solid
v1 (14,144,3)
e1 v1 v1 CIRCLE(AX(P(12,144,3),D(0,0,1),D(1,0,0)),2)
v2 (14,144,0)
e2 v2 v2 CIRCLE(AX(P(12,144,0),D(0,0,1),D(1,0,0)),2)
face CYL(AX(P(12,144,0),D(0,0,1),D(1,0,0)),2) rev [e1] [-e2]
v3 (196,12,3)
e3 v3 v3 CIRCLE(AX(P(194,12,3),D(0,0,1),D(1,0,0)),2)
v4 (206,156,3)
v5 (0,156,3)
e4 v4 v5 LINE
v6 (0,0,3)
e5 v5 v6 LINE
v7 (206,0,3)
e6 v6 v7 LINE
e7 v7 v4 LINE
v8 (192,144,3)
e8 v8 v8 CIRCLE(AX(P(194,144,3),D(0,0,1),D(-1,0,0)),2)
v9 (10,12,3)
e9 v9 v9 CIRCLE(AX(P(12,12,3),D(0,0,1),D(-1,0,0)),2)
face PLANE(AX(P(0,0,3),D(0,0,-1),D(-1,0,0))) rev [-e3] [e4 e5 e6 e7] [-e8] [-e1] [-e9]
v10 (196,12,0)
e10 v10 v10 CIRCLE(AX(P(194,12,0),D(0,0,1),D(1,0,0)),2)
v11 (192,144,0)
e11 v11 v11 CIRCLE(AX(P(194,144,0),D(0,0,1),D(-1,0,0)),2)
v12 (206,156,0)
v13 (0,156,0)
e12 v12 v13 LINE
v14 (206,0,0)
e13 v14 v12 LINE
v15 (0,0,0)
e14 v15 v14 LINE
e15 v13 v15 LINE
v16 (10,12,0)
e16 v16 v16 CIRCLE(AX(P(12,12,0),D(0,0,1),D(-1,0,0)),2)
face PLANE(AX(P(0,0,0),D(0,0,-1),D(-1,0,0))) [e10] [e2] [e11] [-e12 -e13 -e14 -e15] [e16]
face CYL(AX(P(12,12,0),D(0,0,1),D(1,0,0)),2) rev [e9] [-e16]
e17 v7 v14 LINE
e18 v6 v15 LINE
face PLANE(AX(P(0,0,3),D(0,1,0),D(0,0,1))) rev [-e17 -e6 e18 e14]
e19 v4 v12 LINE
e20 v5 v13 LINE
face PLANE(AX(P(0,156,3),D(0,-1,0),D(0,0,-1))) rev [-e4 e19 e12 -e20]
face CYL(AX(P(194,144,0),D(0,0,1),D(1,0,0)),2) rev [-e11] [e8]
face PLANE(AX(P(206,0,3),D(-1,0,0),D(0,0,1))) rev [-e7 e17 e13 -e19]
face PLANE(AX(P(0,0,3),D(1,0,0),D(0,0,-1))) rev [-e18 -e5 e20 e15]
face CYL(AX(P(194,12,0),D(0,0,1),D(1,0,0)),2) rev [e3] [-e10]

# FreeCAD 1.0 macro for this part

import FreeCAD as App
import Part
import Sketcher

V = App.Vector
Q = App.Units.Quantity

doc = App.newDocument("Part")
params = doc.addObject("Spreadsheet::Sheet", "Params")
for row, (alias, value) in enumerate([
    ("sketch1_width", "206 mm"),
    ("sketch1_height", "156 mm"),
    ("pad1_length", "3 mm"),
    ("sketch2_diameter", "4 mm"),
    ("pocket1_length", "3 mm"),
], start=1):
    params.set(f"A{row}", alias)
    params.set(f"B{row}", "=" + value)
    params.setAlias(f"B{row}", alias)

body = doc.addObject("PartDesign::Body", "Body")

# Sketch on XY plane
sketch1 = body.newObject("Sketcher::SketchObject", "Sketch")
sketch1.AttachmentSupport = (doc.getObject("XY_Plane"), [""])
sketch1.MapMode = "FlatFace"
sketch1.addGeometry(Part.LineSegment(V(0, 156, 0), V(0, 0, 0)), False)
sketch1.addGeometry(Part.LineSegment(V(0, 0, 0), V(206, 0, 0)), False)
sketch1.addGeometry(Part.LineSegment(V(206, 0, 0), V(206, 156, 0)), False)
sketch1.addGeometry(Part.LineSegment(V(206, 156, 0), V(0, 156, 0)), False)
sketch1.addConstraint(Sketcher.Constraint("Coincident", 0, 2, 1, 1))
sketch1.addConstraint(Sketcher.Constraint("Coincident", 1, 2, 2, 1))
sketch1.addConstraint(Sketcher.Constraint("Coincident", 2, 2, 3, 1))
sketch1.addConstraint(Sketcher.Constraint("Coincident", 3, 2, 0, 1))
sketch1.addConstraint(Sketcher.Constraint("Vertical", 0))
sketch1.addConstraint(Sketcher.Constraint("Horizontal", 1))
sketch1.addConstraint(Sketcher.Constraint("Vertical", 2))
sketch1.addConstraint(Sketcher.Constraint("Horizontal", 3))
sketch1.addConstraint(Sketcher.Constraint("Coincident", 0, 2, -1, 1))
sketch1.addConstraint(Sketcher.Constraint("DistanceX", 1, 1, 1, 2, Q("206 mm")))
sketch1.addConstraint(Sketcher.Constraint("DistanceY", 0, 2, 0, 1, Q("156 mm")))
sketch1.setExpression("Constraints[9]", "Params.sketch1_width")
sketch1.setExpression("Constraints[10]", "Params.sketch1_height")
pad1 = body.newObject("PartDesign::Pad", "Pad")
pad1.Profile = sketch1
pad1.setExpression("Length", "Params.pad1_length")

# Sketch on XY plane
sketch2 = body.newObject("Sketcher::SketchObject", "Sketch001")
sketch2.AttachmentSupport = (doc.getObject("XY_Plane"), [""])
sketch2.MapMode = "FlatFace"
sketch2.AttachmentOffset = App.Placement(V(0, 0, 3), App.Rotation())
sketch2.addGeometry(Part.Circle(V(12, 144, 0), V(0, 0, 1), 2), False)
sketch2.addGeometry(Part.Circle(V(194, 144, 0), V(0, 0, 1), 2), False)
sketch2.addGeometry(Part.Circle(V(194, 12, 0), V(0, 0, 1), 2), False)
sketch2.addGeometry(Part.Circle(V(12, 12, 0), V(0, 0, 1), 2), False)
sketch2.addConstraint(Sketcher.Constraint("Equal", 0, 1))
sketch2.addConstraint(Sketcher.Constraint("Equal", 1, 2))
sketch2.addConstraint(Sketcher.Constraint("Equal", 2, 3))
sketch2.addConstraint(Sketcher.Constraint("Horizontal", 0, 3, 1, 3))
sketch2.addConstraint(Sketcher.Constraint("Horizontal", 2, 3, 3, 3))
sketch2.addConstraint(Sketcher.Constraint("Vertical", 1, 3, 2, 3))
sketch2.addConstraint(Sketcher.Constraint("Vertical", 0, 3, 3, 3))
sketch2.addConstraint(Sketcher.Constraint("Diameter", 0, Q("4 mm")))
sketch2.addConstraint(Sketcher.Constraint("DistanceX", -1, 1, 0, 3, Q("12 mm")))
sketch2.addConstraint(Sketcher.Constraint("DistanceY", -1, 1, 0, 3, Q("144 mm")))
sketch2.addConstraint(Sketcher.Constraint("DistanceX", -1, 1, 1, 3, Q("194 mm")))
sketch2.addConstraint(Sketcher.Constraint("DistanceY", -1, 1, 2, 3, Q("12 mm")))
sketch2.setExpression("Constraints[7]", "Params.sketch2_diameter")
pocket1 = body.newObject("PartDesign::Pocket", "Pocket")
pocket1.Profile = sketch2
pocket1.setExpression("Length", "Params.pocket1_length")

doc.recompute()
